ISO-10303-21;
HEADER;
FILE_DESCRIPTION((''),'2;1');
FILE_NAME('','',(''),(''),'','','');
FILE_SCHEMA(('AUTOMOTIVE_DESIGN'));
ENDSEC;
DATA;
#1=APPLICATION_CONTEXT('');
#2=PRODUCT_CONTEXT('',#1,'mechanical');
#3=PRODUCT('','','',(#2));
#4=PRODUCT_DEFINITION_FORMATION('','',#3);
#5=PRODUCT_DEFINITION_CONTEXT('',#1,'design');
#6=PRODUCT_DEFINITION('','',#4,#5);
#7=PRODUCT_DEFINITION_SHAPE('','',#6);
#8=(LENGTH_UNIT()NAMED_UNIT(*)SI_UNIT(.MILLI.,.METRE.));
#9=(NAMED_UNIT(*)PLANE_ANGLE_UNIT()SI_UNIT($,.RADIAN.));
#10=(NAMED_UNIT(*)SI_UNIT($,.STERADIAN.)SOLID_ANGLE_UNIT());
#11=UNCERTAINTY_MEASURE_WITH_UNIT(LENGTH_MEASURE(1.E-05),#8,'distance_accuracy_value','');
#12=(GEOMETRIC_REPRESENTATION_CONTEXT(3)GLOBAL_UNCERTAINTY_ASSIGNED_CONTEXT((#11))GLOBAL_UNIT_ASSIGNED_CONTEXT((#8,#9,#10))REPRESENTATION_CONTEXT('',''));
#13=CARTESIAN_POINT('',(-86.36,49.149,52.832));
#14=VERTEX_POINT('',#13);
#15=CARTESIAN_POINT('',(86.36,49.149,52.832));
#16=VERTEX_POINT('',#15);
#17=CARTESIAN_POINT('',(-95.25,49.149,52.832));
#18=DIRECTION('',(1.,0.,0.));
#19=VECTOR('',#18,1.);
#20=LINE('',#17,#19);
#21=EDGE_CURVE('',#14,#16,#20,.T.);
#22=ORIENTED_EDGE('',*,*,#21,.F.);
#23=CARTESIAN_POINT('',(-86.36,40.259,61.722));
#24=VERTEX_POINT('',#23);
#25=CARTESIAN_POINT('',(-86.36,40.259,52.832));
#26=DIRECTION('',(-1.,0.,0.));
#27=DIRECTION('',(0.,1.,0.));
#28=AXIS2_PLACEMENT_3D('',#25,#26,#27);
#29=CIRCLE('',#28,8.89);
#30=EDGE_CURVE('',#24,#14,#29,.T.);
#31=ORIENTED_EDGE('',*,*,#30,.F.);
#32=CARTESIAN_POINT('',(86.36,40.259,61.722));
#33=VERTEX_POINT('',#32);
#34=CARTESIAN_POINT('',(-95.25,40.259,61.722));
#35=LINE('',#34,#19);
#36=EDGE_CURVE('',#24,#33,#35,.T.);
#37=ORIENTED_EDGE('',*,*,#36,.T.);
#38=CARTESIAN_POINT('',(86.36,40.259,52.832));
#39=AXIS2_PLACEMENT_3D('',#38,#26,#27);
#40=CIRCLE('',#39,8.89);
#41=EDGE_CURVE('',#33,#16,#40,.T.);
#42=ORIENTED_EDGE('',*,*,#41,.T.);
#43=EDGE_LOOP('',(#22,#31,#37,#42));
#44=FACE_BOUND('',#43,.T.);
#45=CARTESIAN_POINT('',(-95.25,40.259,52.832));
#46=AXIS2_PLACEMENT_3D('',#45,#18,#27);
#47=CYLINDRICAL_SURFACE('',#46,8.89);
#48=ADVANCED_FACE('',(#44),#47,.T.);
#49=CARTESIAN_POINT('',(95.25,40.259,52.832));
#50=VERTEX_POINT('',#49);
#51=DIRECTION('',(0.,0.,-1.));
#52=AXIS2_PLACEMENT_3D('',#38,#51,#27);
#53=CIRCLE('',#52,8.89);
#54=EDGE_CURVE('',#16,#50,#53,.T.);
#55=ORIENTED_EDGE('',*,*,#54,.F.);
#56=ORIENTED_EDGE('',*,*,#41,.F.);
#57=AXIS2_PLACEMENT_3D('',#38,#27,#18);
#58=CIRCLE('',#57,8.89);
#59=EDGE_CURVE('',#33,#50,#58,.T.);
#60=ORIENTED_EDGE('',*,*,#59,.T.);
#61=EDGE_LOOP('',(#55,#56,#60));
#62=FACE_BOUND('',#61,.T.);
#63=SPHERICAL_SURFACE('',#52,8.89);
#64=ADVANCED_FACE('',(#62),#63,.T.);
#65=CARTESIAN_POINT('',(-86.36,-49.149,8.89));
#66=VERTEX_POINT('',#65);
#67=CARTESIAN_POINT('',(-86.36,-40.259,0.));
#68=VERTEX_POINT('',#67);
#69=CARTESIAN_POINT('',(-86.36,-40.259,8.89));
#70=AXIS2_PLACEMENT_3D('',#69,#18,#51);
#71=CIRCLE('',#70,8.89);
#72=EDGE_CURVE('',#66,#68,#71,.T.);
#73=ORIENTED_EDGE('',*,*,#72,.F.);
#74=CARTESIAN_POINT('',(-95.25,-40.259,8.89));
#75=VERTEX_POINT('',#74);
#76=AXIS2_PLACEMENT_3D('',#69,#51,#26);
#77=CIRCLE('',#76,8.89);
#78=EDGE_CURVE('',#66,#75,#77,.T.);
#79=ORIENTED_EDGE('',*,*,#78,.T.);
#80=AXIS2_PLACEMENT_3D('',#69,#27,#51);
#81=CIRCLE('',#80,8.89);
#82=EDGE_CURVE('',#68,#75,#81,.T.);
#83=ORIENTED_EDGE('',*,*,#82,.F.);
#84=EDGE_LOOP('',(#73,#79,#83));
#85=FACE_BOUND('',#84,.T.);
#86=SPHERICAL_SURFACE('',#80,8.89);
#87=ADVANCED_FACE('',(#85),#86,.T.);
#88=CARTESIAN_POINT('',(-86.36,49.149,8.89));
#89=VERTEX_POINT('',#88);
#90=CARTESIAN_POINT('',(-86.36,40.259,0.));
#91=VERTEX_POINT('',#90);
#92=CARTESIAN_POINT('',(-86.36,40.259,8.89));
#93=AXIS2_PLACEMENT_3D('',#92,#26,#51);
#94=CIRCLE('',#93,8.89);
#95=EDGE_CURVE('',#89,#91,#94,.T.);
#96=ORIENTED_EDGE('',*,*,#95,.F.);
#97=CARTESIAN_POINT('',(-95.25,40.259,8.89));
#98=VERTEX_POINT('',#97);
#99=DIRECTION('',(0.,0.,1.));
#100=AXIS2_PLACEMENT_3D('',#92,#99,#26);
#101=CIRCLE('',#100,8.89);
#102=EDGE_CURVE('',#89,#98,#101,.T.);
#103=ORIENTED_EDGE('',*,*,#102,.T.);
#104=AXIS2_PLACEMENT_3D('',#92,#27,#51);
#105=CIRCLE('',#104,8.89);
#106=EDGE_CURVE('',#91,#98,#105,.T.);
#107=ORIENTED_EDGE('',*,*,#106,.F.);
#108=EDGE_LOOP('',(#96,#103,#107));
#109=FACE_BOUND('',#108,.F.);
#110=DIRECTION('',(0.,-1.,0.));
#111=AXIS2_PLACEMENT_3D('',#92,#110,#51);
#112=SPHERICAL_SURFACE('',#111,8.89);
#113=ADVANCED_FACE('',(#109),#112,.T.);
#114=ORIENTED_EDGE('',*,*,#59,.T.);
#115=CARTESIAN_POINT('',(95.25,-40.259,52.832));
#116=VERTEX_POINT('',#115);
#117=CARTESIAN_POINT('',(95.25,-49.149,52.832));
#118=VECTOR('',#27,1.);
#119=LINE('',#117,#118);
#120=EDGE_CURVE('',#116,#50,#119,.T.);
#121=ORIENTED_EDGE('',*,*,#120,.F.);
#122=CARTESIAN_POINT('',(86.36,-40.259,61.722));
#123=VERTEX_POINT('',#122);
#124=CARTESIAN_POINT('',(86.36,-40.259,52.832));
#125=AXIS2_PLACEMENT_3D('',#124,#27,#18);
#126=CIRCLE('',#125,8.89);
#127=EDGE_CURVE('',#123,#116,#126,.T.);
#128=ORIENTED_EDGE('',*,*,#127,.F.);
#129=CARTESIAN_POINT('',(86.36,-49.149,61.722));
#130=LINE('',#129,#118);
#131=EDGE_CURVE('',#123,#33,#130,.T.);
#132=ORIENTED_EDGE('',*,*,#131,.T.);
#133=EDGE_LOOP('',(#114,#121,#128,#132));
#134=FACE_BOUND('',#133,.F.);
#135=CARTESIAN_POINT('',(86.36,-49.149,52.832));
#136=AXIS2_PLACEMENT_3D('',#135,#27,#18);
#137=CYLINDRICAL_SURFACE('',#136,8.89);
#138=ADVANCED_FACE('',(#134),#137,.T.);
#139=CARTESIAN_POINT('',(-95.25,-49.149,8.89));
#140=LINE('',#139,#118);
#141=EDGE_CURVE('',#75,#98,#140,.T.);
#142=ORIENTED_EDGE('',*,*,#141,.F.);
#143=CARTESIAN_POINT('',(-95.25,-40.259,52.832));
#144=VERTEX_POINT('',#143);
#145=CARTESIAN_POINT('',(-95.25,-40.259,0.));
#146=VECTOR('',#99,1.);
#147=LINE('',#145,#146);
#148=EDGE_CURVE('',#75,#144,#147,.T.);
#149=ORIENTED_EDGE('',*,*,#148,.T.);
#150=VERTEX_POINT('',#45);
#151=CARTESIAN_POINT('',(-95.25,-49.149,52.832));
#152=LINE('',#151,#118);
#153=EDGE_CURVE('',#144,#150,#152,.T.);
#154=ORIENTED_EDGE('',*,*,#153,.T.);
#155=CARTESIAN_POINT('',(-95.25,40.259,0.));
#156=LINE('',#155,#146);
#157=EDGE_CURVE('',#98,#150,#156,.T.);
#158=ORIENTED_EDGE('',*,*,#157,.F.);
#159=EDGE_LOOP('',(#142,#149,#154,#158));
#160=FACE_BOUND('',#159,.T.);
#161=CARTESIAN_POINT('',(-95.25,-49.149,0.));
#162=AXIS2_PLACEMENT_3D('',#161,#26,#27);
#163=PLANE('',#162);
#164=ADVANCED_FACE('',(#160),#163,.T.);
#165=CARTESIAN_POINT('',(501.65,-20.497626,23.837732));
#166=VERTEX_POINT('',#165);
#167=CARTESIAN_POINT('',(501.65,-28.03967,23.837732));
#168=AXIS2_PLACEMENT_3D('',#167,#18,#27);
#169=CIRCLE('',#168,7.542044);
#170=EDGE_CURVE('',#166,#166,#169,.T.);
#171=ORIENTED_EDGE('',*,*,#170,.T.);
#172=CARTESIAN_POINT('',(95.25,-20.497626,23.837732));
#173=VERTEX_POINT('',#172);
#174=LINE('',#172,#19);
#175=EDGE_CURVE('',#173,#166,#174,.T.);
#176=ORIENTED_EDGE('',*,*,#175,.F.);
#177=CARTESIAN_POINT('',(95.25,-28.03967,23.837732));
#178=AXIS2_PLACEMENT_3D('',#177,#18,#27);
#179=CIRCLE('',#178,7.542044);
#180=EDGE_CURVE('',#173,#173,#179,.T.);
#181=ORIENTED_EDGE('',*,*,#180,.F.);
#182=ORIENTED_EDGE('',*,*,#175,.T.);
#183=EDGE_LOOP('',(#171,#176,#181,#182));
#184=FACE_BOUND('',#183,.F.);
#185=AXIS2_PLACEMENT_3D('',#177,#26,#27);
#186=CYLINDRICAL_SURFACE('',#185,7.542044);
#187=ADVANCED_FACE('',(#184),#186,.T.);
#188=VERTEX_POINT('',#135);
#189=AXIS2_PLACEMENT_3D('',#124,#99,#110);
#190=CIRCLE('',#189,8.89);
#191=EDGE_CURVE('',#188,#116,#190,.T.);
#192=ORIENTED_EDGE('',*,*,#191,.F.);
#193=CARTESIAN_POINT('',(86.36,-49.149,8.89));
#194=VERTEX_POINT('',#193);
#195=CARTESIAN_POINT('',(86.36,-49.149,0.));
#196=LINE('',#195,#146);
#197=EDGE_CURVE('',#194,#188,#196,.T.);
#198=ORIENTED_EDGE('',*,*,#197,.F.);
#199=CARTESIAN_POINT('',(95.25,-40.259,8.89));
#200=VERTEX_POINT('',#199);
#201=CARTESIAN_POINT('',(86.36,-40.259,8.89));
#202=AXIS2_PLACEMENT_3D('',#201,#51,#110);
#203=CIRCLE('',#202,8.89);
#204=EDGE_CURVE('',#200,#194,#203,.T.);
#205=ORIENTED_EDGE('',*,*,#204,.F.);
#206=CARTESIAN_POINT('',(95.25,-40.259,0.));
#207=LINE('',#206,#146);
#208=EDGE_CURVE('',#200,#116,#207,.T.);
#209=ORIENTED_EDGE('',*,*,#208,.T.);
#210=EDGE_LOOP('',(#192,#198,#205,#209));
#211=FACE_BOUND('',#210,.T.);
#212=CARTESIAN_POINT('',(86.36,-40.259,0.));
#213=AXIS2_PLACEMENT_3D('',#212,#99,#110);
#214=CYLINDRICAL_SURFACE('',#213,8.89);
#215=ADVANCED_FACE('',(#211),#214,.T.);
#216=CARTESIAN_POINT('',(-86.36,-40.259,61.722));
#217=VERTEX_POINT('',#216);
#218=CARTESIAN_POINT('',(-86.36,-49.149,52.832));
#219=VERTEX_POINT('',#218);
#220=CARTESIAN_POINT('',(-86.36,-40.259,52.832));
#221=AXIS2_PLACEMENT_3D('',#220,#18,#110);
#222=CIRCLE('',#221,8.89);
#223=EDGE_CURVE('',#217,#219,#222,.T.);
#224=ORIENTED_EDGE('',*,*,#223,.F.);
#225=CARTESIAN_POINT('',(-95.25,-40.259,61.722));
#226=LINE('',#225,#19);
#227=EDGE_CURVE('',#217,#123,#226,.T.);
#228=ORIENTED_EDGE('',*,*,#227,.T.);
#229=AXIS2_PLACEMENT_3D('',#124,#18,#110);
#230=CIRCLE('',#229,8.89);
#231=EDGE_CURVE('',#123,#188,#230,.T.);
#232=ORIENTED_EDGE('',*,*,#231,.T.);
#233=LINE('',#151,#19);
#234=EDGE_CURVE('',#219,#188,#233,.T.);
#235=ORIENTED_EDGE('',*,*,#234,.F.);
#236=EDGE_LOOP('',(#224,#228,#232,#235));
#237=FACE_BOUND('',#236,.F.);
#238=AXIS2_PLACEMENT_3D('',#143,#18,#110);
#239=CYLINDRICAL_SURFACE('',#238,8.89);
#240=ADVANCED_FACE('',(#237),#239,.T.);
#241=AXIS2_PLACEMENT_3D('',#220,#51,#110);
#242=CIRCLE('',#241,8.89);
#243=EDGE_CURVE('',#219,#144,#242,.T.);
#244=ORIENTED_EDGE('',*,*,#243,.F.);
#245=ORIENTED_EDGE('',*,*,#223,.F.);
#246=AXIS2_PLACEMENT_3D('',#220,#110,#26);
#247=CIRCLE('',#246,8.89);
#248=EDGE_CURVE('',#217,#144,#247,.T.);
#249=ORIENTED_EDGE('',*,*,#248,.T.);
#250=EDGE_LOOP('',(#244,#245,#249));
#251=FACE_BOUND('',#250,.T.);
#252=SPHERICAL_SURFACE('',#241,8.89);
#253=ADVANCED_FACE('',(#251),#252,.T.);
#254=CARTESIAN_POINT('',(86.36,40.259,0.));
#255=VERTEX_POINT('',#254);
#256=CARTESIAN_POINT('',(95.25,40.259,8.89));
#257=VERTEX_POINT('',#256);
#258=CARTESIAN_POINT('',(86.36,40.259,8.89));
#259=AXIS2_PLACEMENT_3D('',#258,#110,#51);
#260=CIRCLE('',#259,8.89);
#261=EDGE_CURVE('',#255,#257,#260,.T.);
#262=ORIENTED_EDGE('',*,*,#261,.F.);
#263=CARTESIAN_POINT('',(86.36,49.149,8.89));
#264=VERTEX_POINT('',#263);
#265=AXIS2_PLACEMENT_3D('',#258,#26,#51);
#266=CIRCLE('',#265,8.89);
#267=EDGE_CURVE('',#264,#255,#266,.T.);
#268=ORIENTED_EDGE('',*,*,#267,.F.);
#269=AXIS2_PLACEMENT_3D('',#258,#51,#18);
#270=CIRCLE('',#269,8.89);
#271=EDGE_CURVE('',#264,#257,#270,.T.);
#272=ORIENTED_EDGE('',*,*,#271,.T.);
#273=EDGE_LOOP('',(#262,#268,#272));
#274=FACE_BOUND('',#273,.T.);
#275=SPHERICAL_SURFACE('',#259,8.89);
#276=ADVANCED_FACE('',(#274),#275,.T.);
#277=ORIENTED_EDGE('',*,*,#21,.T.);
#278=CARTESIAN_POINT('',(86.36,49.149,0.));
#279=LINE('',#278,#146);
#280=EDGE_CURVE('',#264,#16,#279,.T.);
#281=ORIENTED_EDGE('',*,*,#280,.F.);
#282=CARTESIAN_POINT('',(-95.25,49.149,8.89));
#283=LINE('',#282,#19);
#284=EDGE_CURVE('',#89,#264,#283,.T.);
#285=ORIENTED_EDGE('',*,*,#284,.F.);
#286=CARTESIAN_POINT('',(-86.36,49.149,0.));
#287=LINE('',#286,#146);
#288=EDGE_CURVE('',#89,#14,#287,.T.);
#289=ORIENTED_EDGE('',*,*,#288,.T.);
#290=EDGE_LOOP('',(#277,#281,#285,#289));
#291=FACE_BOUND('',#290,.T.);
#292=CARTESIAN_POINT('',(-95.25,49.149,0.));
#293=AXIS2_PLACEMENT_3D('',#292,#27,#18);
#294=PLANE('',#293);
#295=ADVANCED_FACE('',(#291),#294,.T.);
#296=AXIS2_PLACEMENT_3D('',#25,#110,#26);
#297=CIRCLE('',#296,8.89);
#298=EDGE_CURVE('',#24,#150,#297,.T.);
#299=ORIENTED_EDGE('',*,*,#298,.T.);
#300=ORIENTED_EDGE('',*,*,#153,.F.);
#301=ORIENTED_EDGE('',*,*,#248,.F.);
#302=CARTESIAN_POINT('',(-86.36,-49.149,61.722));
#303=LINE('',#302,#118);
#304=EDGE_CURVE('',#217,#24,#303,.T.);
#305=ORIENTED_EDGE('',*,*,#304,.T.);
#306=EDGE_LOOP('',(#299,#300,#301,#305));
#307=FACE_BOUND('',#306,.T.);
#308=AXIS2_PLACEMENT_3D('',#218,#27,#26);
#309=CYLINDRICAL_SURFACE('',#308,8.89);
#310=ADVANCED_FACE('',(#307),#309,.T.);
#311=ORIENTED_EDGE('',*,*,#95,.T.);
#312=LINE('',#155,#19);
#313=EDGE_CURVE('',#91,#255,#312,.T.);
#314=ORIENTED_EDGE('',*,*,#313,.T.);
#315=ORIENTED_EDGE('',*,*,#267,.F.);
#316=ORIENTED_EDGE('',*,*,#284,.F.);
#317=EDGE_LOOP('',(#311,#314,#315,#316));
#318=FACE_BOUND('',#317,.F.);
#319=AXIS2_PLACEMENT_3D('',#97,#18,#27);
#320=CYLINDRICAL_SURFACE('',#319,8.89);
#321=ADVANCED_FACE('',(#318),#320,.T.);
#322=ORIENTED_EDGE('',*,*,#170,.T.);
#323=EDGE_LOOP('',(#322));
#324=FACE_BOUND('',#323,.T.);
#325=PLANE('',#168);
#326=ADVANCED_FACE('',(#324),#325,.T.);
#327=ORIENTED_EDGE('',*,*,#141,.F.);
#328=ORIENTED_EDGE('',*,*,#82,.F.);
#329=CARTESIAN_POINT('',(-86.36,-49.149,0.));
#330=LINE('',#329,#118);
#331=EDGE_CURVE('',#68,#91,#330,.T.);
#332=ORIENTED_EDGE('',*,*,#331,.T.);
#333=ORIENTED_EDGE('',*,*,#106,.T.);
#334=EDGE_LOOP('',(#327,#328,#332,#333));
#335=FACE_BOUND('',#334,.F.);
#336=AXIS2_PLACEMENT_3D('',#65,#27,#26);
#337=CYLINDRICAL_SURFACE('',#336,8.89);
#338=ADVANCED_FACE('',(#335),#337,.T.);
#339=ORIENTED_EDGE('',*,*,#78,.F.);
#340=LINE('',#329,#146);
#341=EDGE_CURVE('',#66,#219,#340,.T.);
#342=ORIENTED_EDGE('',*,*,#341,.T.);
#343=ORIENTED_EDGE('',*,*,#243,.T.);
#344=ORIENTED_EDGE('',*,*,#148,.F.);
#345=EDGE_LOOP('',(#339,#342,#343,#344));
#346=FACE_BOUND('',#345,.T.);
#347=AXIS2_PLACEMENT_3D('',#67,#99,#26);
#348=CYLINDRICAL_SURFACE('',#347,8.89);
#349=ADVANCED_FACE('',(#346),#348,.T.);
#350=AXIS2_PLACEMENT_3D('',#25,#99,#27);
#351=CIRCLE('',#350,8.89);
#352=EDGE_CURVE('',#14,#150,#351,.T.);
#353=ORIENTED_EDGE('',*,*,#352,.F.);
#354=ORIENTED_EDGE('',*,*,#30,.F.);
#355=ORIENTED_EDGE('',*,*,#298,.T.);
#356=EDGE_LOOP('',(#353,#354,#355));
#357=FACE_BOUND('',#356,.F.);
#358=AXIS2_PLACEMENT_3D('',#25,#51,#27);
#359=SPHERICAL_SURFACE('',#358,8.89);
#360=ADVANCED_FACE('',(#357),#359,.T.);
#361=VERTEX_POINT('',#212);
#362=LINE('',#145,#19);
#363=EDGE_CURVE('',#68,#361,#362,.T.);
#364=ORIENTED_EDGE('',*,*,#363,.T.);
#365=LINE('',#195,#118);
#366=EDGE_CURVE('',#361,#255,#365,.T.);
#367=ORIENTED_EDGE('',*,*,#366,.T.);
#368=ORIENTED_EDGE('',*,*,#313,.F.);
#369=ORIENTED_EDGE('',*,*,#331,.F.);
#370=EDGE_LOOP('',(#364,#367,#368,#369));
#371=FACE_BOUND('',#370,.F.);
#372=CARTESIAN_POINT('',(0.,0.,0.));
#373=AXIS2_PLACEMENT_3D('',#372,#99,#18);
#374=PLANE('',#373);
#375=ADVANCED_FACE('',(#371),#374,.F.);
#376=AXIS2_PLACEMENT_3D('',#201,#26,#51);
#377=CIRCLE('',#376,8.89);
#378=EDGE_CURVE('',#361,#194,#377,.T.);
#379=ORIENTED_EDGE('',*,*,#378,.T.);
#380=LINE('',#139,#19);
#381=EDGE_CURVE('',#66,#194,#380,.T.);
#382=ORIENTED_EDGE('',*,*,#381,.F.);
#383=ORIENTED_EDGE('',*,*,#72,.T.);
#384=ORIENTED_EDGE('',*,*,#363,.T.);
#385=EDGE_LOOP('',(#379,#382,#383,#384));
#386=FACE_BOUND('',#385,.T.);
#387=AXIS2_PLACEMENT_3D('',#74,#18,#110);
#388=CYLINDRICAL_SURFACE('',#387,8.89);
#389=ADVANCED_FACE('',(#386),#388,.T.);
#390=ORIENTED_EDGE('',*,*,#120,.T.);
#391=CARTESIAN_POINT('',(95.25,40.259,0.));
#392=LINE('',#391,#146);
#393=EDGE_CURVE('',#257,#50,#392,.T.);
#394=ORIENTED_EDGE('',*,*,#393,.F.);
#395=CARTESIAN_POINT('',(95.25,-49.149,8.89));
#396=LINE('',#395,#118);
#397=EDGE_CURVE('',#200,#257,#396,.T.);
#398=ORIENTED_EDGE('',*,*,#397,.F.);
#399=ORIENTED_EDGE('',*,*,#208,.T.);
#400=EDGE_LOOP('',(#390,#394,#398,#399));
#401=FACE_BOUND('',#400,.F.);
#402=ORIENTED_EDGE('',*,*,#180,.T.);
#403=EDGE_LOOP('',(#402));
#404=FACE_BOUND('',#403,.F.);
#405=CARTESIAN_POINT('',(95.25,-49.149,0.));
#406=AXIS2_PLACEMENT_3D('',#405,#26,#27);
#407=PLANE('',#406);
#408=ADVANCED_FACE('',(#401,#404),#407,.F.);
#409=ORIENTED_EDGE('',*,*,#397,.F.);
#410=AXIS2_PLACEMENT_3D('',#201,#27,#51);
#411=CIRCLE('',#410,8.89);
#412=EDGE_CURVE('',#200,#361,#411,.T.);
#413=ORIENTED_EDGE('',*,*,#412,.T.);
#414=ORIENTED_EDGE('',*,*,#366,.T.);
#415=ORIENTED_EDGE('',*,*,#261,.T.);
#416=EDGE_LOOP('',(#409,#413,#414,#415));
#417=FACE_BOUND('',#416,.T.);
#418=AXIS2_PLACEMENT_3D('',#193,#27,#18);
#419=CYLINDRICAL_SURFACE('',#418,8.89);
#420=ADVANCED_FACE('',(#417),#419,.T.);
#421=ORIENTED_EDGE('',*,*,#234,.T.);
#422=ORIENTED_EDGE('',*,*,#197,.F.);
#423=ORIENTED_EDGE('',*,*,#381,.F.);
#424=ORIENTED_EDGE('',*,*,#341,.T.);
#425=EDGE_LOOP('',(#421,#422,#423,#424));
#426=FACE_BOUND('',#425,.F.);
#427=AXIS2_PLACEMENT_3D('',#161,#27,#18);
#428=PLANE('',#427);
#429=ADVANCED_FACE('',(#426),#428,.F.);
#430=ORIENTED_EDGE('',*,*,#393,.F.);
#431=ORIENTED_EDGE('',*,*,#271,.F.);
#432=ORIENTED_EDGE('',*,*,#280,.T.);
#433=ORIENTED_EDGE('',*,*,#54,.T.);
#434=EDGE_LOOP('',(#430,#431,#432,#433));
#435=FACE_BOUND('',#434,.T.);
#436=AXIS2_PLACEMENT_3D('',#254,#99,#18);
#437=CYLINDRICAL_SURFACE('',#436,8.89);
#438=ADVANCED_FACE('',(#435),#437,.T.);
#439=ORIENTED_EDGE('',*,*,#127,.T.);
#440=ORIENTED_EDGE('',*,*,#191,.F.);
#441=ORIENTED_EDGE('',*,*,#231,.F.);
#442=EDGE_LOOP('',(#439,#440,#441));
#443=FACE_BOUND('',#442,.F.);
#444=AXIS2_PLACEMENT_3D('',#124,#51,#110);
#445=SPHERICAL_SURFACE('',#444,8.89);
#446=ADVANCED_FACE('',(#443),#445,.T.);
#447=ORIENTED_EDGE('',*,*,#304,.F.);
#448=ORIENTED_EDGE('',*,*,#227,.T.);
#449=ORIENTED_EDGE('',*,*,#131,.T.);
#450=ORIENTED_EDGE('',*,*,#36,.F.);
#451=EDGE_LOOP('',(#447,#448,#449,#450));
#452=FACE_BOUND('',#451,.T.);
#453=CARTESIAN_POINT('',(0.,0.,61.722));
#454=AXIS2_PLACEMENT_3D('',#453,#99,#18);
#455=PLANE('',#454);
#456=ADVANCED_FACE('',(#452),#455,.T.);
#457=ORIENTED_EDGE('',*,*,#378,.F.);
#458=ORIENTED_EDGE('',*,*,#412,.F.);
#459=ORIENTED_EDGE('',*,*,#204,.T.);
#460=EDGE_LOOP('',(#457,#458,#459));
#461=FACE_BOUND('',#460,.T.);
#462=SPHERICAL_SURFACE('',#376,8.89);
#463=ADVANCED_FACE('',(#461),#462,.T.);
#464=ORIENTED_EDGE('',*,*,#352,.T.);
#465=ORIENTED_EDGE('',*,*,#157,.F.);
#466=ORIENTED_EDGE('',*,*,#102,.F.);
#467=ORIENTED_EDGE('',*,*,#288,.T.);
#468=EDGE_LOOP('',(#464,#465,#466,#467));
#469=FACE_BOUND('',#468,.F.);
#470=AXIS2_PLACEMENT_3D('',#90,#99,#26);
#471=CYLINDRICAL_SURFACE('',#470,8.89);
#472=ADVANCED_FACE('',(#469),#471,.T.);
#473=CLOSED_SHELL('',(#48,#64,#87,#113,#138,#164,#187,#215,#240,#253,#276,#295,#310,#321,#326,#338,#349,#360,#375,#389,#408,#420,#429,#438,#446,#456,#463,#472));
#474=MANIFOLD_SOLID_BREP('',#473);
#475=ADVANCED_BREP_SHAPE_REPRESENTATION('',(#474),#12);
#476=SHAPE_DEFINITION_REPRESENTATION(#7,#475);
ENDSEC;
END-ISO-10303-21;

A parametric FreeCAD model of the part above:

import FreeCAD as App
import Part
import Sketcher
from FreeCAD import Vector
Q = App.Units.Quantity

doc = App.newDocument("Part")
body = doc.addObject("PartDesign::Body", "Body")

# Sketch on XY plane
sketch1 = body.newObject("Sketcher::SketchObject", "Sketch")
sketch1.AttachmentSupport = (doc.getObject("XY_Plane"), [""])
sketch1.MapMode = "FlatFace"
sketch1.addGeometry([
    Part.LineSegment(Vector(-95.25, 49.149, 0), Vector(-95.25, -49.149, 0)),
    Part.LineSegment(Vector(-95.25, -49.149, 0), Vector(95.25, -49.149, 0)),
    Part.LineSegment(Vector(95.25, -49.149, 0), Vector(95.25, 49.149, 0)),
    Part.LineSegment(Vector(95.25, 49.149, 0), Vector(-95.25, 49.149, 0)),
], False)
sketch1.addConstraint([
    Sketcher.Constraint("Coincident", 0, 2, 1, 1),
    Sketcher.Constraint("Coincident", 1, 2, 2, 1),
    Sketcher.Constraint("Coincident", 2, 2, 3, 1),
    Sketcher.Constraint("Coincident", 3, 2, 0, 1),
    Sketcher.Constraint("Vertical", 0),
    Sketcher.Constraint("Horizontal", 1),
    Sketcher.Constraint("Vertical", 2),
    Sketcher.Constraint("Horizontal", 3),
    Sketcher.Constraint("Symmetric", 0, 2, 2, 2, -1, 1),
    Sketcher.Constraint("DistanceX", 1, 1, 1, 2, Q("7.5 in")),
    Sketcher.Constraint("DistanceY", 0, 2, 0, 1, Q("3.87 in")),
])
pad1 = body.newObject("PartDesign::Pad", "Pad")
pad1.Profile = sketch1
pad1.Length = Q("2.43 in")
doc.recompute()

fillet = body.newObject("PartDesign::Fillet", "Fillet")
fillet.Base = (pad1, ["Edge1"])
fillet.UseAllEdges = True
fillet.Radius = Q("0.35 in")

# Sketch on YZ plane
sketch2 = body.newObject("Sketcher::SketchObject", "Sketch001")
sketch2.AttachmentSupport = (doc.getObject("YZ_Plane"), [""])
sketch2.MapMode = "FlatFace"
sketch2.AttachmentOffset = App.Placement(Vector(0, 0, 3.75 * 25.4), App.Rotation())
sketch2.addGeometry(Part.Circle(Vector(-28.03967, 23.837732, 0), Vector(0, 0, 1), 7.542044), False)
sketch2.addConstraint([
    Sketcher.Constraint("Diameter", 0, Q("15.084088 mm")),
    Sketcher.Constraint("DistanceX", 0, 3, -1, 1, Q("28.03967 mm")),
    Sketcher.Constraint("DistanceY", -1, 1, 0, 3, Q("23.837732 mm")),
])
pad2 = body.newObject("PartDesign::Pad", "Pad001")
pad2.Profile = sketch2
pad2.Length = Q("16 in")

doc.recompute()
